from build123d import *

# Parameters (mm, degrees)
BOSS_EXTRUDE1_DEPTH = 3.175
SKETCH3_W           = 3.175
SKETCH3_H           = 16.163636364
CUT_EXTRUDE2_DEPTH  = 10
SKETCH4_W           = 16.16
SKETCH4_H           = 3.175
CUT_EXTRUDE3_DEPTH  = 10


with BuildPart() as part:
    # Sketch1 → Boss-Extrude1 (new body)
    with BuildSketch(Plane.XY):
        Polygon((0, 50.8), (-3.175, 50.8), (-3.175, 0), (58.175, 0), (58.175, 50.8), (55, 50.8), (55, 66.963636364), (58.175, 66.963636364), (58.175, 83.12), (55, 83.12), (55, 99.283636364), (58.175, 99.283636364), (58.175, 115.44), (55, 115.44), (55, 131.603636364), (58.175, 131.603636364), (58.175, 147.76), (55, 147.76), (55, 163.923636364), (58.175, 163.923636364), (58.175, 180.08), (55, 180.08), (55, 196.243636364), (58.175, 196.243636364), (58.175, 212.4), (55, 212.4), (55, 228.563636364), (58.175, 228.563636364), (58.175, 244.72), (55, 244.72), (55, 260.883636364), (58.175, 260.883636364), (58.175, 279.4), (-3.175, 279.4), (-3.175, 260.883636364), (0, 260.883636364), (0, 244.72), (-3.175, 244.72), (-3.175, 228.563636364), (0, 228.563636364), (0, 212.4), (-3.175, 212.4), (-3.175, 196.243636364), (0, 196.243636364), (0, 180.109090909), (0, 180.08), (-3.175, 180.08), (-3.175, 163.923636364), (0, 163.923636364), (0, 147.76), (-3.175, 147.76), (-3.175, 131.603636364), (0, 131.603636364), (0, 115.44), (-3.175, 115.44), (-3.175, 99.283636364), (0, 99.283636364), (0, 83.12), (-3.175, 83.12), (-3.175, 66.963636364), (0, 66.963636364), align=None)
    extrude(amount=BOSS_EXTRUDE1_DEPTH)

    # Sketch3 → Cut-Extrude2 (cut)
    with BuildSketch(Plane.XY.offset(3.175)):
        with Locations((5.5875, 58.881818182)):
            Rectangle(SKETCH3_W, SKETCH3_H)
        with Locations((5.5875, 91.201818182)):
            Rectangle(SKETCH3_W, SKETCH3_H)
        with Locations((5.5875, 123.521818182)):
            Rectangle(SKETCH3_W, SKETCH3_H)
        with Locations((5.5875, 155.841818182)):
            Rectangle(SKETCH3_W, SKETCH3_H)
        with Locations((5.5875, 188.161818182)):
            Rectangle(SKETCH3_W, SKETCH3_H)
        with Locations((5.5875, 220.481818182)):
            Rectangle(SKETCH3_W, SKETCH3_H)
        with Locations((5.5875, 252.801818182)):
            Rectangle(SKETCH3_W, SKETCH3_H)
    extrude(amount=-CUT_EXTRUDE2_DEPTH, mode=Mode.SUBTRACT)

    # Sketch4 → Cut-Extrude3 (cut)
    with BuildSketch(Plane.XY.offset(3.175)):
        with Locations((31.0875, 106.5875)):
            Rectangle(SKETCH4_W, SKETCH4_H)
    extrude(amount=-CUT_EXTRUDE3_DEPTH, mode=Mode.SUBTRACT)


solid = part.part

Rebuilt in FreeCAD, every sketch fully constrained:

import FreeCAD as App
import Part
import Sketcher
from FreeCAD import Vector
Q = App.Units.Quantity

doc = App.newDocument("Part")
body = doc.addObject("PartDesign::Body", "Body")

# Sketch on XY plane
sketch1 = doc.addObject("Sketcher::SketchObject", "Sketch")
body.addObject(sketch1)
sketch1.AttachmentSupport = (doc.XY_Plane, [""])
sketch1.MapMode = "FlatFace"
sketch1.addGeometry([
    Part.LineSegment(Vector(0, 50.8, 0), Vector(-3.175, 50.8, 0)),  # 0
    Part.LineSegment(Vector(-3.175, 50.8, 0), Vector(-3.175, 0, 0)),  # 1
    Part.LineSegment(Vector(-3.175, 0, 0), Vector(58.175, 0, 0)),  # 2
    Part.LineSegment(Vector(58.175, 0, 0), Vector(58.175, 50.8, 0)),  # 3
    Part.LineSegment(Vector(58.175, 50.8, 0), Vector(55, 50.8, 0)),  # 4
    Part.LineSegment(Vector(55, 50.8, 0), Vector(55, 66.963636, 0)),  # 5
    Part.LineSegment(Vector(55, 66.963636, 0), Vector(58.175, 66.963636, 0)),  # 6
    Part.LineSegment(Vector(58.175, 66.963636, 0), Vector(58.175, 83.12, 0)),  # 7
    Part.LineSegment(Vector(58.175, 83.12, 0), Vector(55, 83.12, 0)),  # 8
    Part.LineSegment(Vector(55, 83.12, 0), Vector(55, 99.283636, 0)),  # 9
    Part.LineSegment(Vector(55, 99.283636, 0), Vector(58.175, 99.283636, 0)),  # 10
    Part.LineSegment(Vector(58.175, 99.283636, 0), Vector(58.175, 115.44, 0)),  # 11
    Part.LineSegment(Vector(58.175, 115.44, 0), Vector(55, 115.44, 0)),  # 12
    Part.LineSegment(Vector(55, 115.44, 0), Vector(55, 131.603636, 0)),  # 13
    Part.LineSegment(Vector(55, 131.603636, 0), Vector(58.175, 131.603636, 0)),  # 14
    Part.LineSegment(Vector(58.175, 131.603636, 0), Vector(58.175, 147.76, 0)),  # 15
    Part.LineSegment(Vector(58.175, 147.76, 0), Vector(55, 147.76, 0)),  # 16
    Part.LineSegment(Vector(55, 147.76, 0), Vector(55, 163.923636, 0)),  # 17
    Part.LineSegment(Vector(55, 163.923636, 0), Vector(58.175, 163.923636, 0)),  # 18
    Part.LineSegment(Vector(58.175, 163.923636, 0), Vector(58.175, 180.08, 0)),  # 19
    Part.LineSegment(Vector(58.175, 180.08, 0), Vector(55, 180.08, 0)),  # 20
    Part.LineSegment(Vector(55, 180.08, 0), Vector(55, 196.243636, 0)),  # 21
    Part.LineSegment(Vector(55, 196.243636, 0), Vector(58.175, 196.243636, 0)),  # 22
    Part.LineSegment(Vector(58.175, 196.243636, 0), Vector(58.175, 212.4, 0)),  # 23
    Part.LineSegment(Vector(58.175, 212.4, 0), Vector(55, 212.4, 0)),  # 24
    Part.LineSegment(Vector(55, 212.4, 0), Vector(55, 228.563636, 0)),  # 25
    Part.LineSegment(Vector(55, 228.563636, 0), Vector(58.175, 228.563636, 0)),  # 26
    Part.LineSegment(Vector(58.175, 228.563636, 0), Vector(58.175, 244.72, 0)),  # 27
    Part.LineSegment(Vector(58.175, 244.72, 0), Vector(55, 244.72, 0)),  # 28
    Part.LineSegment(Vector(55, 244.72, 0), Vector(55, 260.883636, 0)),  # 29
    Part.LineSegment(Vector(55, 260.883636, 0), Vector(58.175, 260.883636, 0)),  # 30
    Part.LineSegment(Vector(58.175, 260.883636, 0), Vector(58.175, 279.4, 0)),  # 31
    Part.LineSegment(Vector(58.175, 279.4, 0), Vector(-3.175, 279.4, 0)),  # 32
    Part.LineSegment(Vector(-3.175, 279.4, 0), Vector(-3.175, 260.883636, 0)),  # 33
    Part.LineSegment(Vector(-3.175, 260.883636, 0), Vector(0, 260.883636, 0)),  # 34
    Part.LineSegment(Vector(0, 260.883636, 0), Vector(0, 244.72, 0)),  # 35
    Part.LineSegment(Vector(0, 244.72, 0), Vector(-3.175, 244.72, 0)),  # 36
    Part.LineSegment(Vector(-3.175, 244.72, 0), Vector(-3.175, 228.563636, 0)),  # 37
    Part.LineSegment(Vector(-3.175, 228.563636, 0), Vector(0, 228.563636, 0)),  # 38
    Part.LineSegment(Vector(0, 228.563636, 0), Vector(0, 212.4, 0)),  # 39
    Part.LineSegment(Vector(0, 212.4, 0), Vector(-3.175, 212.4, 0)),  # 40
    Part.LineSegment(Vector(-3.175, 212.4, 0), Vector(-3.175, 196.243636, 0)),  # 41
    Part.LineSegment(Vector(-3.175, 196.243636, 0), Vector(0, 196.243636, 0)),  # 42
    Part.LineSegment(Vector(0, 196.243636, 0), Vector(0, 180.08, 0)),  # 43
    Part.LineSegment(Vector(0, 180.08, 0), Vector(-3.175, 180.08, 0)),  # 44
    Part.LineSegment(Vector(-3.175, 180.08, 0), Vector(-3.175, 163.923636, 0)),  # 45
    Part.LineSegment(Vector(-3.175, 163.923636, 0), Vector(0, 163.923636, 0)),  # 46
    Part.LineSegment(Vector(0, 163.923636, 0), Vector(0, 147.76, 0)),  # 47
    Part.LineSegment(Vector(0, 147.76, 0), Vector(-3.175, 147.76, 0)),  # 48
    Part.LineSegment(Vector(-3.175, 147.76, 0), Vector(-3.175, 131.603636, 0)),  # 49
    Part.LineSegment(Vector(-3.175, 131.603636, 0), Vector(0, 131.603636, 0)),  # 50
    Part.LineSegment(Vector(0, 131.603636, 0), Vector(0, 115.44, 0)),  # 51
    Part.LineSegment(Vector(0, 115.44, 0), Vector(-3.175, 115.44, 0)),  # 52
    Part.LineSegment(Vector(-3.175, 115.44, 0), Vector(-3.175, 99.283636, 0)),  # 53
    Part.LineSegment(Vector(-3.175, 99.283636, 0), Vector(0, 99.283636, 0)),  # 54
    Part.LineSegment(Vector(0, 99.283636, 0), Vector(0, 83.12, 0)),  # 55
    Part.LineSegment(Vector(0, 83.12, 0), Vector(-3.175, 83.12, 0)),  # 56
    Part.LineSegment(Vector(-3.175, 83.12, 0), Vector(-3.175, 66.963636, 0)),  # 57
    Part.LineSegment(Vector(-3.175, 66.963636, 0), Vector(0, 66.963636, 0)),  # 58
    Part.LineSegment(Vector(0, 66.963636, 0), Vector(0, 50.8, 0)),  # 59
], False)
sketch1.addConstraint([
    Sketcher.Constraint("Coincident", 0, 2, 1, 1),
    Sketcher.Constraint("Coincident", 1, 2, 2, 1),
    Sketcher.Constraint("Coincident", 2, 2, 3, 1),
    Sketcher.Constraint("Coincident", 3, 2, 4, 1),
    Sketcher.Constraint("Coincident", 4, 2, 5, 1),
    Sketcher.Constraint("Coincident", 5, 2, 6, 1),
    Sketcher.Constraint("Coincident", 6, 2, 7, 1),
    Sketcher.Constraint("Coincident", 7, 2, 8, 1),
    Sketcher.Constraint("Coincident", 8, 2, 9, 1),
    Sketcher.Constraint("Coincident", 9, 2, 10, 1),
    Sketcher.Constraint("Coincident", 10, 2, 11, 1),
    Sketcher.Constraint("Coincident", 11, 2, 12, 1),
    Sketcher.Constraint("Coincident", 12, 2, 13, 1),
    Sketcher.Constraint("Coincident", 13, 2, 14, 1),
    Sketcher.Constraint("Coincident", 14, 2, 15, 1),
    Sketcher.Constraint("Coincident", 15, 2, 16, 1),
    Sketcher.Constraint("Coincident", 16, 2, 17, 1),
    Sketcher.Constraint("Coincident", 17, 2, 18, 1),
    Sketcher.Constraint("Coincident", 18, 2, 19, 1),
    Sketcher.Constraint("Coincident", 19, 2, 20, 1),
    Sketcher.Constraint("Coincident", 20, 2, 21, 1),
    Sketcher.Constraint("Coincident", 21, 2, 22, 1),
    Sketcher.Constraint("Coincident", 22, 2, 23, 1),
    Sketcher.Constraint("Coincident", 23, 2, 24, 1),
    Sketcher.Constraint("Coincident", 24, 2, 25, 1),
    Sketcher.Constraint("Coincident", 25, 2, 26, 1),
    Sketcher.Constraint("Coincident", 26, 2, 27, 1),
    Sketcher.Constraint("Coincident", 27, 2, 28, 1),
    Sketcher.Constraint("Coincident", 28, 2, 29, 1),
    Sketcher.Constraint("Coincident", 29, 2, 30, 1),
    Sketcher.Constraint("Coincident", 30, 2, 31, 1),
    Sketcher.Constraint("Coincident", 31, 2, 32, 1),
    Sketcher.Constraint("Coincident", 32, 2, 33, 1),
    Sketcher.Constraint("Coincident", 33, 2, 34, 1),
    Sketcher.Constraint("Coincident", 34, 2, 35, 1),
    Sketcher.Constraint("Coincident", 35, 2, 36, 1),
    Sketcher.Constraint("Coincident", 36, 2, 37, 1),
    Sketcher.Constraint("Coincident", 37, 2, 38, 1),
    Sketcher.Constraint("Coincident", 38, 2, 39, 1),
    Sketcher.Constraint("Coincident", 39, 2, 40, 1),
    Sketcher.Constraint("Coincident", 40, 2, 41, 1),
    Sketcher.Constraint("Coincident", 41, 2, 42, 1),
    Sketcher.Constraint("Coincident", 42, 2, 43, 1),
    Sketcher.Constraint("Coincident", 43, 2, 44, 1),
    Sketcher.Constraint("Coincident", 44, 2, 45, 1),
    Sketcher.Constraint("Coincident", 45, 2, 46, 1),
    Sketcher.Constraint("Coincident", 46, 2, 47, 1),
    Sketcher.Constraint("Coincident", 47, 2, 48, 1),
    Sketcher.Constraint("Coincident", 48, 2, 49, 1),
    Sketcher.Constraint("Coincident", 49, 2, 50, 1),
    Sketcher.Constraint("Coincident", 50, 2, 51, 1),
    Sketcher.Constraint("Coincident", 51, 2, 52, 1),
    Sketcher.Constraint("Coincident", 52, 2, 53, 1),
    Sketcher.Constraint("Coincident", 53, 2, 54, 1),
    Sketcher.Constraint("Coincident", 54, 2, 55, 1),
    Sketcher.Constraint("Coincident", 55, 2, 56, 1),
    Sketcher.Constraint("Coincident", 56, 2, 57, 1),
    Sketcher.Constraint("Coincident", 57, 2, 58, 1),
    Sketcher.Constraint("Coincident", 58, 2, 59, 1),
    Sketcher.Constraint("Coincident", 59, 2, 0, 1),
    Sketcher.Constraint("Horizontal", 0),
    Sketcher.Constraint("Vertical", 1),
    Sketcher.Constraint("Horizontal", 2),
    Sketcher.Constraint("Vertical", 3),
    Sketcher.Constraint("Horizontal", 4),
    Sketcher.Constraint("Vertical", 5),
    Sketcher.Constraint("Horizontal", 6),
    Sketcher.Constraint("Vertical", 7),
    Sketcher.Constraint("Horizontal", 8),
    Sketcher.Constraint("Vertical", 9),
    Sketcher.Constraint("Horizontal", 10),
    Sketcher.Constraint("Vertical", 11),
    Sketcher.Constraint("Horizontal", 12),
    Sketcher.Constraint("Vertical", 13),
    Sketcher.Constraint("Horizontal", 14),
    Sketcher.Constraint("Vertical", 15),
    Sketcher.Constraint("Horizontal", 16),
    Sketcher.Constraint("Vertical", 17),
    Sketcher.Constraint("Horizontal", 18),
    Sketcher.Constraint("Vertical", 19),
    Sketcher.Constraint("Horizontal", 20),
    Sketcher.Constraint("Vertical", 21),
    Sketcher.Constraint("Horizontal", 22),
    Sketcher.Constraint("Vertical", 23),
    Sketcher.Constraint("Horizontal", 24),
    Sketcher.Constraint("Vertical", 25),
    Sketcher.Constraint("Horizontal", 26),
    Sketcher.Constraint("Vertical", 27),
    Sketcher.Constraint("Horizontal", 28),
    Sketcher.Constraint("Vertical", 29),
    Sketcher.Constraint("Horizontal", 30),
    Sketcher.Constraint("Vertical", 31),
    Sketcher.Constraint("Horizontal", 32),
    Sketcher.Constraint("Vertical", 33),
    Sketcher.Constraint("Horizontal", 34),
    Sketcher.Constraint("Vertical", 35),
    Sketcher.Constraint("Horizontal", 36),
    Sketcher.Constraint("Vertical", 37),
    Sketcher.Constraint("Horizontal", 38),
    Sketcher.Constraint("Vertical", 39),
    Sketcher.Constraint("Horizontal", 40),
    Sketcher.Constraint("Vertical", 41),
    Sketcher.Constraint("Horizontal", 42),
    Sketcher.Constraint("Vertical", 43),
    Sketcher.Constraint("Horizontal", 44),
    Sketcher.Constraint("Vertical", 45),
    Sketcher.Constraint("Horizontal", 46),
    Sketcher.Constraint("Vertical", 47),
    Sketcher.Constraint("Horizontal", 48),
    Sketcher.Constraint("Vertical", 49),
    Sketcher.Constraint("Horizontal", 50),
    Sketcher.Constraint("Vertical", 51),
    Sketcher.Constraint("Horizontal", 52),
    Sketcher.Constraint("Vertical", 53),
    Sketcher.Constraint("Horizontal", 54),
    Sketcher.Constraint("Vertical", 55),
    Sketcher.Constraint("Horizontal", 56),
    Sketcher.Constraint("Vertical", 57),
    Sketcher.Constraint("Horizontal", 58),
    Sketcher.Constraint("Vertical", 59),
    Sketcher.Constraint("PointOnObject", 1, 2, -1),
    Sketcher.Constraint("PointOnObject", 34, 2, -2),
    Sketcher.Constraint("PointOnObject", 38, 2, -2),
    Sketcher.Constraint("PointOnObject", 42, 2, -2),
    Sketcher.Constraint("PointOnObject", 46, 2, -2),
    Sketcher.Constraint("PointOnObject", 50, 2, -2),
    Sketcher.Constraint("PointOnObject", 54, 2, -2),
    Sketcher.Constraint("PointOnObject", 58, 2, -2),
    Sketcher.Constraint("Horizontal", 0, 2, 3, 2),
    Sketcher.Constraint("Horizontal", 30, 2, 33, 2),
    Sketcher.Constraint("Horizontal", 28, 2, 35, 2),
    Sketcher.Constraint("Horizontal", 26, 2, 37, 2),
    Sketcher.Constraint("Horizontal", 24, 2, 39, 2),
    Sketcher.Constraint("Horizontal", 22, 2, 41, 2),
    Sketcher.Constraint("Horizontal", 20, 2, 43, 2),
    Sketcher.Constraint("Horizontal", 18, 2, 45, 2),
    Sketcher.Constraint("Horizontal", 16, 2, 47, 2),
    Sketcher.Constraint("Horizontal", 14, 2, 49, 2),
    Sketcher.Constraint("Horizontal", 12, 2, 51, 2),
    Sketcher.Constraint("Horizontal", 10, 2, 53, 2),
    Sketcher.Constraint("Horizontal", 8, 2, 55, 2),
    Sketcher.Constraint("Horizontal", 6, 2, 57, 2),
    Sketcher.Constraint("Vertical", 3, 2, 6, 2),
    Sketcher.Constraint("Vertical", 5, 2, 8, 2),
    Sketcher.Constraint("Vertical", 7, 2, 10, 2),
    Sketcher.Constraint("Vertical", 9, 2, 12, 2),
    Sketcher.Constraint("Vertical", 11, 2, 14, 2),
    Sketcher.Constraint("Vertical", 13, 2, 16, 2),
    Sketcher.Constraint("Vertical", 15, 2, 18, 2),
    Sketcher.Constraint("Vertical", 17, 2, 20, 2),
    Sketcher.Constraint("Vertical", 19, 2, 22, 2),
    Sketcher.Constraint("Vertical", 21, 2, 24, 2),
    Sketcher.Constraint("Vertical", 23, 2, 26, 2),
    Sketcher.Constraint("Vertical", 25, 2, 28, 2),
    Sketcher.Constraint("Vertical", 27, 2, 30, 2),
    Sketcher.Constraint("Vertical", 1, 2, 32, 2),
    Sketcher.Constraint("Vertical", 33, 2, 36, 2),
    Sketcher.Constraint("Vertical", 37, 2, 40, 2),
    Sketcher.Constraint("Vertical", 41, 2, 44, 2),
    Sketcher.Constraint("Vertical", 45, 2, 48, 2),
    Sketcher.Constraint("Vertical", 49, 2, 52, 2),
    Sketcher.Constraint("Vertical", 53, 2, 56, 2),
    Sketcher.Constraint("Equal", 0, 4),
    Sketcher.Constraint("Equal", 5, 9),
    Sketcher.Constraint("Equal", 7, 11),
    Sketcher.Constraint("Equal", 9, 13),
    Sketcher.Constraint("Equal", 11, 15),
    Sketcher.Constraint("Equal", 13, 17),
    Sketcher.Constraint("Equal", 15, 19),
    Sketcher.Constraint("Equal", 17, 21),
    Sketcher.Constraint("Equal", 19, 23),
    Sketcher.Constraint("Equal", 21, 25),
    Sketcher.Constraint("Equal", 23, 27),
    Sketcher.Constraint("Equal", 25, 29),
    Sketcher.Constraint("DistanceY", 1, 2, 1, 1, Q("2 in")),
    Sketcher.Constraint("DistanceY", -1, 1, 31, 2, Q("11 in")),
    Sketcher.Constraint("DistanceX", 0, 2, 0, 1, Q("0.125 in")),
    Sketcher.Constraint("DistanceX", 2, 1, 2, 2, Q("61.35 mm")),
    Sketcher.Constraint("DistanceY", -1, 1, 7, 2, Q("83.12 mm")),
    Sketcher.Constraint("DistanceY", 5, 1, 5, 2, Q("16.163636 mm")),
])
pad1 = doc.addObject("PartDesign::Pad", "Pad")
body.addObject(pad1)
pad1.Profile = sketch1
pad1.Length = Q("0.125 in")

# Sketch on XY plane
sketch2 = doc.addObject("Sketcher::SketchObject", "Sketch001")
body.addObject(sketch2)
sketch2.AttachmentSupport = (doc.XY_Plane, [""])
sketch2.MapMode = "FlatFace"
sketch2.AttachmentOffset = App.Placement(Vector(0, 0, 0.125 * 25.4), App.Rotation())
sketch2.addGeometry([
    Part.LineSegment(Vector(4, 66.963636, 0), Vector(4, 50.8, 0)),  # 0
    Part.LineSegment(Vector(4, 50.8, 0), Vector(7.175, 50.8, 0)),  # 1
    Part.LineSegment(Vector(7.175, 50.8, 0), Vector(7.175, 66.963636, 0)),  # 2
    Part.LineSegment(Vector(7.175, 66.963636, 0), Vector(4, 66.963636, 0)),  # 3
    Part.LineSegment(Vector(4, 99.283636, 0), Vector(4, 83.12, 0)),  # 4
    Part.LineSegment(Vector(4, 83.12, 0), Vector(7.175, 83.12, 0)),  # 5
    Part.LineSegment(Vector(7.175, 83.12, 0), Vector(7.175, 99.283636, 0)),  # 6
    Part.LineSegment(Vector(7.175, 99.283636, 0), Vector(4, 99.283636, 0)),  # 7
    Part.LineSegment(Vector(4, 131.603636, 0), Vector(4, 115.44, 0)),  # 8
    Part.LineSegment(Vector(4, 115.44, 0), Vector(7.175, 115.44, 0)),  # 9
    Part.LineSegment(Vector(7.175, 115.44, 0), Vector(7.175, 131.603636, 0)),  # 10
    Part.LineSegment(Vector(7.175, 131.603636, 0), Vector(4, 131.603636, 0)),  # 11
    Part.LineSegment(Vector(4, 163.923636, 0), Vector(4, 147.76, 0)),  # 12
    Part.LineSegment(Vector(4, 147.76, 0), Vector(7.175, 147.76, 0)),  # 13
    Part.LineSegment(Vector(7.175, 147.76, 0), Vector(7.175, 163.923636, 0)),  # 14
    Part.LineSegment(Vector(7.175, 163.923636, 0), Vector(4, 163.923636, 0)),  # 15
    Part.LineSegment(Vector(4, 196.243636, 0), Vector(4, 180.08, 0)),  # 16
    Part.LineSegment(Vector(4, 180.08, 0), Vector(7.175, 180.08, 0)),  # 17
    Part.LineSegment(Vector(7.175, 180.08, 0), Vector(7.175, 196.243636, 0)),  # 18
    Part.LineSegment(Vector(7.175, 196.243636, 0), Vector(4, 196.243636, 0)),  # 19
    Part.LineSegment(Vector(4, 228.563636, 0), Vector(4, 212.4, 0)),  # 20
    Part.LineSegment(Vector(4, 212.4, 0), Vector(7.175, 212.4, 0)),  # 21
    Part.LineSegment(Vector(7.175, 212.4, 0), Vector(7.175, 228.563636, 0)),  # 22
    Part.LineSegment(Vector(7.175, 228.563636, 0), Vector(4, 228.563636, 0)),  # 23
    Part.LineSegment(Vector(4, 260.883636, 0), Vector(4, 244.72, 0)),  # 24
    Part.LineSegment(Vector(4, 244.72, 0), Vector(7.175, 244.72, 0)),  # 25
    Part.LineSegment(Vector(7.175, 244.72, 0), Vector(7.175, 260.883636, 0)),  # 26
    Part.LineSegment(Vector(7.175, 260.883636, 0), Vector(4, 260.883636, 0)),  # 27
], False)
sketch2.addConstraint([
    Sketcher.Constraint("Coincident", 0, 2, 1, 1),
    Sketcher.Constraint("Coincident", 1, 2, 2, 1),
    Sketcher.Constraint("Coincident", 2, 2, 3, 1),
    Sketcher.Constraint("Coincident", 3, 2, 0, 1),
    Sketcher.Constraint("Coincident", 4, 2, 5, 1),
    Sketcher.Constraint("Coincident", 5, 2, 6, 1),
    Sketcher.Constraint("Coincident", 6, 2, 7, 1),
    Sketcher.Constraint("Coincident", 7, 2, 4, 1),
    Sketcher.Constraint("Coincident", 8, 2, 9, 1),
    Sketcher.Constraint("Coincident", 9, 2, 10, 1),
    Sketcher.Constraint("Coincident", 10, 2, 11, 1),
    Sketcher.Constraint("Coincident", 11, 2, 8, 1),
    Sketcher.Constraint("Coincident", 12, 2, 13, 1),
    Sketcher.Constraint("Coincident", 13, 2, 14, 1),
    Sketcher.Constraint("Coincident", 14, 2, 15, 1),
    Sketcher.Constraint("Coincident", 15, 2, 12, 1),
    Sketcher.Constraint("Coincident", 16, 2, 17, 1),
    Sketcher.Constraint("Coincident", 17, 2, 18, 1),
    Sketcher.Constraint("Coincident", 18, 2, 19, 1),
    Sketcher.Constraint("Coincident", 19, 2, 16, 1),
    Sketcher.Constraint("Coincident", 20, 2, 21, 1),
    Sketcher.Constraint("Coincident", 21, 2, 22, 1),
    Sketcher.Constraint("Coincident", 22, 2, 23, 1),
    Sketcher.Constraint("Coincident", 23, 2, 20, 1),
    Sketcher.Constraint("Coincident", 24, 2, 25, 1),
    Sketcher.Constraint("Coincident", 25, 2, 26, 1),
    Sketcher.Constraint("Coincident", 26, 2, 27, 1),
    Sketcher.Constraint("Coincident", 27, 2, 24, 1),
    Sketcher.Constraint("Vertical", 0),
    Sketcher.Constraint("Horizontal", 1),
    Sketcher.Constraint("Vertical", 2),
    Sketcher.Constraint("Horizontal", 3),
    Sketcher.Constraint("Vertical", 4),
    Sketcher.Constraint("Horizontal", 5),
    Sketcher.Constraint("Vertical", 6),
    Sketcher.Constraint("Horizontal", 7),
    Sketcher.Constraint("Vertical", 8),
    Sketcher.Constraint("Horizontal", 9),
    Sketcher.Constraint("Vertical", 10),
    Sketcher.Constraint("Horizontal", 11),
    Sketcher.Constraint("Vertical", 12),
    Sketcher.Constraint("Horizontal", 13),
    Sketcher.Constraint("Vertical", 14),
    Sketcher.Constraint("Horizontal", 15),
    Sketcher.Constraint("Vertical", 16),
    Sketcher.Constraint("Horizontal", 17),
    Sketcher.Constraint("Vertical", 18),
    Sketcher.Constraint("Horizontal", 19),
    Sketcher.Constraint("Vertical", 20),
    Sketcher.Constraint("Horizontal", 21),
    Sketcher.Constraint("Vertical", 22),
    Sketcher.Constraint("Horizontal", 23),
    Sketcher.Constraint("Vertical", 24),
    Sketcher.Constraint("Horizontal", 25),
    Sketcher.Constraint("Vertical", 26),
    Sketcher.Constraint("Horizontal", 27),
    Sketcher.Constraint("Vertical", 3, 2, 4, 2),
    Sketcher.Constraint("Vertical", 2, 2, 5, 2),
    Sketcher.Constraint("Vertical", 7, 2, 8, 2),
    Sketcher.Constraint("Vertical", 6, 2, 9, 2),
    Sketcher.Constraint("Vertical", 11, 2, 12, 2),
    Sketcher.Constraint("Vertical", 10, 2, 13, 2),
    Sketcher.Constraint("Vertical", 15, 2, 16, 2),
    Sketcher.Constraint("Vertical", 14, 2, 17, 2),
    Sketcher.Constraint("Vertical", 19, 2, 20, 2),
    Sketcher.Constraint("Vertical", 18, 2, 21, 2),
    Sketcher.Constraint("Vertical", 23, 2, 24, 2),
    Sketcher.Constraint("Vertical", 22, 2, 25, 2),
    Sketcher.Constraint("Equal", 2, 4),
    Sketcher.Constraint("Equal", 6, 8),
    Sketcher.Constraint("Equal", 10, 12),
    Sketcher.Constraint("Equal", 14, 16),
    Sketcher.Constraint("Equal", 18, 20),
    Sketcher.Constraint("Equal", 22, 24),
    Sketcher.Constraint("DistanceY", -1, 1, 0, 2, Q("2 in")),
    Sketcher.Constraint("DistanceX", 1, 1, 1, 2, Q("0.125 in")),
    Sketcher.Constraint("DistanceX", -1, 1, 0, 2, Q("4 mm")),
    Sketcher.Constraint("DistanceY", -1, 1, 4, 2, Q("83.12 mm")),
    Sketcher.Constraint("DistanceY", -1, 1, 8, 2, Q("115.44 mm")),
    Sketcher.Constraint("DistanceY", -1, 1, 12, 2, Q("147.76 mm")),
    Sketcher.Constraint("DistanceY", -1, 1, 16, 2, Q("180.08 mm")),
    Sketcher.Constraint("DistanceY", -1, 1, 20, 2, Q("212.4 mm")),
    Sketcher.Constraint("DistanceY", -1, 1, 24, 2, Q("244.72 mm")),
    Sketcher.Constraint("DistanceY", 0, 2, 0, 1, Q("16.163636 mm")),
])
pocket1 = doc.addObject("PartDesign::Pocket", "Pocket")
body.addObject(pocket1)
pocket1.Profile = sketch2
pocket1.Length = 10

# Sketch on XY plane
sketch3 = doc.addObject("Sketcher::SketchObject", "Sketch002")
body.addObject(sketch3)
sketch3.AttachmentSupport = (doc.XY_Plane, [""])
sketch3.MapMode = "FlatFace"
sketch3.AttachmentOffset = App.Placement(Vector(0, 0, 0.125 * 25.4), App.Rotation())
sketch3.addGeometry([
    Part.LineSegment(Vector(23.0075, 108.175, 0), Vector(23.0075, 105, 0)),
    Part.LineSegment(Vector(23.0075, 105, 0), Vector(39.1675, 105, 0)),
    Part.LineSegment(Vector(39.1675, 105, 0), Vector(39.1675, 108.175, 0)),
    Part.LineSegment(Vector(39.1675, 108.175, 0), Vector(23.0075, 108.175, 0)),
], False)
sketch3.addConstraint([
    Sketcher.Constraint("Coincident", 0, 2, 1, 1),
    Sketcher.Constraint("Coincident", 1, 2, 2, 1),
    Sketcher.Constraint("Coincident", 2, 2, 3, 1),
    Sketcher.Constraint("Coincident", 3, 2, 0, 1),
    Sketcher.Constraint("Vertical", 0),
    Sketcher.Constraint("Horizontal", 1),
    Sketcher.Constraint("Vertical", 2),
    Sketcher.Constraint("Horizontal", 3),
    Sketcher.Constraint("DistanceY", 0, 2, 0, 1, Q("0.125 in")),
    Sketcher.Constraint("DistanceX", 1, 1, 1, 2, Q("16.16 mm")),
    Sketcher.Constraint("DistanceX", -1, 1, 0, 2, Q("23.0075 mm")),
    Sketcher.Constraint("DistanceY", -1, 1, 0, 2, Q("105 mm")),
])
pocket2 = doc.addObject("PartDesign::Pocket", "Pocket001")
body.addObject(pocket2)
pocket2.Profile = sketch3
pocket2.Length = 10

doc.recompute()
